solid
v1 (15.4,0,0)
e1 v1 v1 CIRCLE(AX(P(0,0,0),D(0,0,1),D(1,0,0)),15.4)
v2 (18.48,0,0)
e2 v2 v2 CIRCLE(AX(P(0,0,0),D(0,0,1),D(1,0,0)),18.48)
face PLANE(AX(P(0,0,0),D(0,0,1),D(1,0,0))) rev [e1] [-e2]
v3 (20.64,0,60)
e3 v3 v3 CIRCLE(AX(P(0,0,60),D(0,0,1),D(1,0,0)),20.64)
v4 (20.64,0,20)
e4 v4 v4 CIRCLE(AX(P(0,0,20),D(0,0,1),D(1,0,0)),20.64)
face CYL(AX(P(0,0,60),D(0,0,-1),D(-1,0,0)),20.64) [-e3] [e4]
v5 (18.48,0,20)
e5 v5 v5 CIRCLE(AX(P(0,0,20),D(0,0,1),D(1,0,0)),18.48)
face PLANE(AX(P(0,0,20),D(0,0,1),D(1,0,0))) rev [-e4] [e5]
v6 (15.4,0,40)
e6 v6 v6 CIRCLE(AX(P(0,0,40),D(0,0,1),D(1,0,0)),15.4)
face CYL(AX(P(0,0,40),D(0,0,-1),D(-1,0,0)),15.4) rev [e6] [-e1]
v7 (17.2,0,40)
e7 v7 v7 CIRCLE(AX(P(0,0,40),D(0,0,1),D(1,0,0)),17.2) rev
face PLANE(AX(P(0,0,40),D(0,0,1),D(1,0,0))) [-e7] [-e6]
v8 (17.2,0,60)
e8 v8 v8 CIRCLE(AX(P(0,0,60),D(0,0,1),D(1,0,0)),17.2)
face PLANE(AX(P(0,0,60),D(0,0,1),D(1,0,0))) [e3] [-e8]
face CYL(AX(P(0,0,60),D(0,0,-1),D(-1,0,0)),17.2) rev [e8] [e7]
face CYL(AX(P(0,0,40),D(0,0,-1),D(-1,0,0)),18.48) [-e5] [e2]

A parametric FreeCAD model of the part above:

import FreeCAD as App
import Part
import Sketcher

doc = App.newDocument("Part")
body = doc.addObject("PartDesign::Body", "Body")

sketch1 = body.newObject("Sketcher::SketchObject", "Sketch")
sketch1.AttachmentSupport = (doc.getObject("XY_Plane"), [""])
sketch1.MapMode = "FlatFace"
sketch1.addGeometry(Part.Circle(App.Vector(0, 0, 0), App.Vector(0, 0, 1), 18.48), False)
sketch1.addGeometry(Part.Circle(App.Vector(0, 0, 0), App.Vector(0, 0, 1), 15.4), False)
sketch1.addConstraint(Sketcher.Constraint("Coincident", 0, 3, -1, 1))
sketch1.addConstraint(Sketcher.Constraint("Coincident", 1, 3, -1, 1))
sketch1.addConstraint(Sketcher.Constraint("Diameter", 1, 30.8))
sketch1.addConstraint(Sketcher.Constraint("Diameter", 0, 36.96))
pad1 = body.newObject("PartDesign::Pad", "Pad")
pad1.Profile = sketch1
pad1.Length = 40

sketch2 = body.newObject("Sketcher::SketchObject", "Sketch001")
sketch2.AttachmentSupport = (doc.getObject("XY_Plane"), [""])
sketch2.MapMode = "FlatFace"
sketch2.AttachmentOffset = App.Placement(App.Vector(0, 0, 20), App.Rotation())
sketch2.addGeometry(Part.Circle(App.Vector(0, 0, 0), App.Vector(0, 0, 1), 20.64), False)
sketch2.addGeometry(Part.Circle(App.Vector(0, 0, 0), App.Vector(0, 0, 1), 17.2), False)
sketch2.addConstraint(Sketcher.Constraint("Coincident", 0, 3, -1, 1))
sketch2.addConstraint(Sketcher.Constraint("Coincident", 1, 3, -1, 1))
sketch2.addConstraint(Sketcher.Constraint("Diameter", 1, 34.4))
sketch2.addConstraint(Sketcher.Constraint("Diameter", 0, 41.28))
pad2 = body.newObject("PartDesign::Pad", "Pad001")
pad2.Profile = sketch2
pad2.Length = 40

doc.recompute()
